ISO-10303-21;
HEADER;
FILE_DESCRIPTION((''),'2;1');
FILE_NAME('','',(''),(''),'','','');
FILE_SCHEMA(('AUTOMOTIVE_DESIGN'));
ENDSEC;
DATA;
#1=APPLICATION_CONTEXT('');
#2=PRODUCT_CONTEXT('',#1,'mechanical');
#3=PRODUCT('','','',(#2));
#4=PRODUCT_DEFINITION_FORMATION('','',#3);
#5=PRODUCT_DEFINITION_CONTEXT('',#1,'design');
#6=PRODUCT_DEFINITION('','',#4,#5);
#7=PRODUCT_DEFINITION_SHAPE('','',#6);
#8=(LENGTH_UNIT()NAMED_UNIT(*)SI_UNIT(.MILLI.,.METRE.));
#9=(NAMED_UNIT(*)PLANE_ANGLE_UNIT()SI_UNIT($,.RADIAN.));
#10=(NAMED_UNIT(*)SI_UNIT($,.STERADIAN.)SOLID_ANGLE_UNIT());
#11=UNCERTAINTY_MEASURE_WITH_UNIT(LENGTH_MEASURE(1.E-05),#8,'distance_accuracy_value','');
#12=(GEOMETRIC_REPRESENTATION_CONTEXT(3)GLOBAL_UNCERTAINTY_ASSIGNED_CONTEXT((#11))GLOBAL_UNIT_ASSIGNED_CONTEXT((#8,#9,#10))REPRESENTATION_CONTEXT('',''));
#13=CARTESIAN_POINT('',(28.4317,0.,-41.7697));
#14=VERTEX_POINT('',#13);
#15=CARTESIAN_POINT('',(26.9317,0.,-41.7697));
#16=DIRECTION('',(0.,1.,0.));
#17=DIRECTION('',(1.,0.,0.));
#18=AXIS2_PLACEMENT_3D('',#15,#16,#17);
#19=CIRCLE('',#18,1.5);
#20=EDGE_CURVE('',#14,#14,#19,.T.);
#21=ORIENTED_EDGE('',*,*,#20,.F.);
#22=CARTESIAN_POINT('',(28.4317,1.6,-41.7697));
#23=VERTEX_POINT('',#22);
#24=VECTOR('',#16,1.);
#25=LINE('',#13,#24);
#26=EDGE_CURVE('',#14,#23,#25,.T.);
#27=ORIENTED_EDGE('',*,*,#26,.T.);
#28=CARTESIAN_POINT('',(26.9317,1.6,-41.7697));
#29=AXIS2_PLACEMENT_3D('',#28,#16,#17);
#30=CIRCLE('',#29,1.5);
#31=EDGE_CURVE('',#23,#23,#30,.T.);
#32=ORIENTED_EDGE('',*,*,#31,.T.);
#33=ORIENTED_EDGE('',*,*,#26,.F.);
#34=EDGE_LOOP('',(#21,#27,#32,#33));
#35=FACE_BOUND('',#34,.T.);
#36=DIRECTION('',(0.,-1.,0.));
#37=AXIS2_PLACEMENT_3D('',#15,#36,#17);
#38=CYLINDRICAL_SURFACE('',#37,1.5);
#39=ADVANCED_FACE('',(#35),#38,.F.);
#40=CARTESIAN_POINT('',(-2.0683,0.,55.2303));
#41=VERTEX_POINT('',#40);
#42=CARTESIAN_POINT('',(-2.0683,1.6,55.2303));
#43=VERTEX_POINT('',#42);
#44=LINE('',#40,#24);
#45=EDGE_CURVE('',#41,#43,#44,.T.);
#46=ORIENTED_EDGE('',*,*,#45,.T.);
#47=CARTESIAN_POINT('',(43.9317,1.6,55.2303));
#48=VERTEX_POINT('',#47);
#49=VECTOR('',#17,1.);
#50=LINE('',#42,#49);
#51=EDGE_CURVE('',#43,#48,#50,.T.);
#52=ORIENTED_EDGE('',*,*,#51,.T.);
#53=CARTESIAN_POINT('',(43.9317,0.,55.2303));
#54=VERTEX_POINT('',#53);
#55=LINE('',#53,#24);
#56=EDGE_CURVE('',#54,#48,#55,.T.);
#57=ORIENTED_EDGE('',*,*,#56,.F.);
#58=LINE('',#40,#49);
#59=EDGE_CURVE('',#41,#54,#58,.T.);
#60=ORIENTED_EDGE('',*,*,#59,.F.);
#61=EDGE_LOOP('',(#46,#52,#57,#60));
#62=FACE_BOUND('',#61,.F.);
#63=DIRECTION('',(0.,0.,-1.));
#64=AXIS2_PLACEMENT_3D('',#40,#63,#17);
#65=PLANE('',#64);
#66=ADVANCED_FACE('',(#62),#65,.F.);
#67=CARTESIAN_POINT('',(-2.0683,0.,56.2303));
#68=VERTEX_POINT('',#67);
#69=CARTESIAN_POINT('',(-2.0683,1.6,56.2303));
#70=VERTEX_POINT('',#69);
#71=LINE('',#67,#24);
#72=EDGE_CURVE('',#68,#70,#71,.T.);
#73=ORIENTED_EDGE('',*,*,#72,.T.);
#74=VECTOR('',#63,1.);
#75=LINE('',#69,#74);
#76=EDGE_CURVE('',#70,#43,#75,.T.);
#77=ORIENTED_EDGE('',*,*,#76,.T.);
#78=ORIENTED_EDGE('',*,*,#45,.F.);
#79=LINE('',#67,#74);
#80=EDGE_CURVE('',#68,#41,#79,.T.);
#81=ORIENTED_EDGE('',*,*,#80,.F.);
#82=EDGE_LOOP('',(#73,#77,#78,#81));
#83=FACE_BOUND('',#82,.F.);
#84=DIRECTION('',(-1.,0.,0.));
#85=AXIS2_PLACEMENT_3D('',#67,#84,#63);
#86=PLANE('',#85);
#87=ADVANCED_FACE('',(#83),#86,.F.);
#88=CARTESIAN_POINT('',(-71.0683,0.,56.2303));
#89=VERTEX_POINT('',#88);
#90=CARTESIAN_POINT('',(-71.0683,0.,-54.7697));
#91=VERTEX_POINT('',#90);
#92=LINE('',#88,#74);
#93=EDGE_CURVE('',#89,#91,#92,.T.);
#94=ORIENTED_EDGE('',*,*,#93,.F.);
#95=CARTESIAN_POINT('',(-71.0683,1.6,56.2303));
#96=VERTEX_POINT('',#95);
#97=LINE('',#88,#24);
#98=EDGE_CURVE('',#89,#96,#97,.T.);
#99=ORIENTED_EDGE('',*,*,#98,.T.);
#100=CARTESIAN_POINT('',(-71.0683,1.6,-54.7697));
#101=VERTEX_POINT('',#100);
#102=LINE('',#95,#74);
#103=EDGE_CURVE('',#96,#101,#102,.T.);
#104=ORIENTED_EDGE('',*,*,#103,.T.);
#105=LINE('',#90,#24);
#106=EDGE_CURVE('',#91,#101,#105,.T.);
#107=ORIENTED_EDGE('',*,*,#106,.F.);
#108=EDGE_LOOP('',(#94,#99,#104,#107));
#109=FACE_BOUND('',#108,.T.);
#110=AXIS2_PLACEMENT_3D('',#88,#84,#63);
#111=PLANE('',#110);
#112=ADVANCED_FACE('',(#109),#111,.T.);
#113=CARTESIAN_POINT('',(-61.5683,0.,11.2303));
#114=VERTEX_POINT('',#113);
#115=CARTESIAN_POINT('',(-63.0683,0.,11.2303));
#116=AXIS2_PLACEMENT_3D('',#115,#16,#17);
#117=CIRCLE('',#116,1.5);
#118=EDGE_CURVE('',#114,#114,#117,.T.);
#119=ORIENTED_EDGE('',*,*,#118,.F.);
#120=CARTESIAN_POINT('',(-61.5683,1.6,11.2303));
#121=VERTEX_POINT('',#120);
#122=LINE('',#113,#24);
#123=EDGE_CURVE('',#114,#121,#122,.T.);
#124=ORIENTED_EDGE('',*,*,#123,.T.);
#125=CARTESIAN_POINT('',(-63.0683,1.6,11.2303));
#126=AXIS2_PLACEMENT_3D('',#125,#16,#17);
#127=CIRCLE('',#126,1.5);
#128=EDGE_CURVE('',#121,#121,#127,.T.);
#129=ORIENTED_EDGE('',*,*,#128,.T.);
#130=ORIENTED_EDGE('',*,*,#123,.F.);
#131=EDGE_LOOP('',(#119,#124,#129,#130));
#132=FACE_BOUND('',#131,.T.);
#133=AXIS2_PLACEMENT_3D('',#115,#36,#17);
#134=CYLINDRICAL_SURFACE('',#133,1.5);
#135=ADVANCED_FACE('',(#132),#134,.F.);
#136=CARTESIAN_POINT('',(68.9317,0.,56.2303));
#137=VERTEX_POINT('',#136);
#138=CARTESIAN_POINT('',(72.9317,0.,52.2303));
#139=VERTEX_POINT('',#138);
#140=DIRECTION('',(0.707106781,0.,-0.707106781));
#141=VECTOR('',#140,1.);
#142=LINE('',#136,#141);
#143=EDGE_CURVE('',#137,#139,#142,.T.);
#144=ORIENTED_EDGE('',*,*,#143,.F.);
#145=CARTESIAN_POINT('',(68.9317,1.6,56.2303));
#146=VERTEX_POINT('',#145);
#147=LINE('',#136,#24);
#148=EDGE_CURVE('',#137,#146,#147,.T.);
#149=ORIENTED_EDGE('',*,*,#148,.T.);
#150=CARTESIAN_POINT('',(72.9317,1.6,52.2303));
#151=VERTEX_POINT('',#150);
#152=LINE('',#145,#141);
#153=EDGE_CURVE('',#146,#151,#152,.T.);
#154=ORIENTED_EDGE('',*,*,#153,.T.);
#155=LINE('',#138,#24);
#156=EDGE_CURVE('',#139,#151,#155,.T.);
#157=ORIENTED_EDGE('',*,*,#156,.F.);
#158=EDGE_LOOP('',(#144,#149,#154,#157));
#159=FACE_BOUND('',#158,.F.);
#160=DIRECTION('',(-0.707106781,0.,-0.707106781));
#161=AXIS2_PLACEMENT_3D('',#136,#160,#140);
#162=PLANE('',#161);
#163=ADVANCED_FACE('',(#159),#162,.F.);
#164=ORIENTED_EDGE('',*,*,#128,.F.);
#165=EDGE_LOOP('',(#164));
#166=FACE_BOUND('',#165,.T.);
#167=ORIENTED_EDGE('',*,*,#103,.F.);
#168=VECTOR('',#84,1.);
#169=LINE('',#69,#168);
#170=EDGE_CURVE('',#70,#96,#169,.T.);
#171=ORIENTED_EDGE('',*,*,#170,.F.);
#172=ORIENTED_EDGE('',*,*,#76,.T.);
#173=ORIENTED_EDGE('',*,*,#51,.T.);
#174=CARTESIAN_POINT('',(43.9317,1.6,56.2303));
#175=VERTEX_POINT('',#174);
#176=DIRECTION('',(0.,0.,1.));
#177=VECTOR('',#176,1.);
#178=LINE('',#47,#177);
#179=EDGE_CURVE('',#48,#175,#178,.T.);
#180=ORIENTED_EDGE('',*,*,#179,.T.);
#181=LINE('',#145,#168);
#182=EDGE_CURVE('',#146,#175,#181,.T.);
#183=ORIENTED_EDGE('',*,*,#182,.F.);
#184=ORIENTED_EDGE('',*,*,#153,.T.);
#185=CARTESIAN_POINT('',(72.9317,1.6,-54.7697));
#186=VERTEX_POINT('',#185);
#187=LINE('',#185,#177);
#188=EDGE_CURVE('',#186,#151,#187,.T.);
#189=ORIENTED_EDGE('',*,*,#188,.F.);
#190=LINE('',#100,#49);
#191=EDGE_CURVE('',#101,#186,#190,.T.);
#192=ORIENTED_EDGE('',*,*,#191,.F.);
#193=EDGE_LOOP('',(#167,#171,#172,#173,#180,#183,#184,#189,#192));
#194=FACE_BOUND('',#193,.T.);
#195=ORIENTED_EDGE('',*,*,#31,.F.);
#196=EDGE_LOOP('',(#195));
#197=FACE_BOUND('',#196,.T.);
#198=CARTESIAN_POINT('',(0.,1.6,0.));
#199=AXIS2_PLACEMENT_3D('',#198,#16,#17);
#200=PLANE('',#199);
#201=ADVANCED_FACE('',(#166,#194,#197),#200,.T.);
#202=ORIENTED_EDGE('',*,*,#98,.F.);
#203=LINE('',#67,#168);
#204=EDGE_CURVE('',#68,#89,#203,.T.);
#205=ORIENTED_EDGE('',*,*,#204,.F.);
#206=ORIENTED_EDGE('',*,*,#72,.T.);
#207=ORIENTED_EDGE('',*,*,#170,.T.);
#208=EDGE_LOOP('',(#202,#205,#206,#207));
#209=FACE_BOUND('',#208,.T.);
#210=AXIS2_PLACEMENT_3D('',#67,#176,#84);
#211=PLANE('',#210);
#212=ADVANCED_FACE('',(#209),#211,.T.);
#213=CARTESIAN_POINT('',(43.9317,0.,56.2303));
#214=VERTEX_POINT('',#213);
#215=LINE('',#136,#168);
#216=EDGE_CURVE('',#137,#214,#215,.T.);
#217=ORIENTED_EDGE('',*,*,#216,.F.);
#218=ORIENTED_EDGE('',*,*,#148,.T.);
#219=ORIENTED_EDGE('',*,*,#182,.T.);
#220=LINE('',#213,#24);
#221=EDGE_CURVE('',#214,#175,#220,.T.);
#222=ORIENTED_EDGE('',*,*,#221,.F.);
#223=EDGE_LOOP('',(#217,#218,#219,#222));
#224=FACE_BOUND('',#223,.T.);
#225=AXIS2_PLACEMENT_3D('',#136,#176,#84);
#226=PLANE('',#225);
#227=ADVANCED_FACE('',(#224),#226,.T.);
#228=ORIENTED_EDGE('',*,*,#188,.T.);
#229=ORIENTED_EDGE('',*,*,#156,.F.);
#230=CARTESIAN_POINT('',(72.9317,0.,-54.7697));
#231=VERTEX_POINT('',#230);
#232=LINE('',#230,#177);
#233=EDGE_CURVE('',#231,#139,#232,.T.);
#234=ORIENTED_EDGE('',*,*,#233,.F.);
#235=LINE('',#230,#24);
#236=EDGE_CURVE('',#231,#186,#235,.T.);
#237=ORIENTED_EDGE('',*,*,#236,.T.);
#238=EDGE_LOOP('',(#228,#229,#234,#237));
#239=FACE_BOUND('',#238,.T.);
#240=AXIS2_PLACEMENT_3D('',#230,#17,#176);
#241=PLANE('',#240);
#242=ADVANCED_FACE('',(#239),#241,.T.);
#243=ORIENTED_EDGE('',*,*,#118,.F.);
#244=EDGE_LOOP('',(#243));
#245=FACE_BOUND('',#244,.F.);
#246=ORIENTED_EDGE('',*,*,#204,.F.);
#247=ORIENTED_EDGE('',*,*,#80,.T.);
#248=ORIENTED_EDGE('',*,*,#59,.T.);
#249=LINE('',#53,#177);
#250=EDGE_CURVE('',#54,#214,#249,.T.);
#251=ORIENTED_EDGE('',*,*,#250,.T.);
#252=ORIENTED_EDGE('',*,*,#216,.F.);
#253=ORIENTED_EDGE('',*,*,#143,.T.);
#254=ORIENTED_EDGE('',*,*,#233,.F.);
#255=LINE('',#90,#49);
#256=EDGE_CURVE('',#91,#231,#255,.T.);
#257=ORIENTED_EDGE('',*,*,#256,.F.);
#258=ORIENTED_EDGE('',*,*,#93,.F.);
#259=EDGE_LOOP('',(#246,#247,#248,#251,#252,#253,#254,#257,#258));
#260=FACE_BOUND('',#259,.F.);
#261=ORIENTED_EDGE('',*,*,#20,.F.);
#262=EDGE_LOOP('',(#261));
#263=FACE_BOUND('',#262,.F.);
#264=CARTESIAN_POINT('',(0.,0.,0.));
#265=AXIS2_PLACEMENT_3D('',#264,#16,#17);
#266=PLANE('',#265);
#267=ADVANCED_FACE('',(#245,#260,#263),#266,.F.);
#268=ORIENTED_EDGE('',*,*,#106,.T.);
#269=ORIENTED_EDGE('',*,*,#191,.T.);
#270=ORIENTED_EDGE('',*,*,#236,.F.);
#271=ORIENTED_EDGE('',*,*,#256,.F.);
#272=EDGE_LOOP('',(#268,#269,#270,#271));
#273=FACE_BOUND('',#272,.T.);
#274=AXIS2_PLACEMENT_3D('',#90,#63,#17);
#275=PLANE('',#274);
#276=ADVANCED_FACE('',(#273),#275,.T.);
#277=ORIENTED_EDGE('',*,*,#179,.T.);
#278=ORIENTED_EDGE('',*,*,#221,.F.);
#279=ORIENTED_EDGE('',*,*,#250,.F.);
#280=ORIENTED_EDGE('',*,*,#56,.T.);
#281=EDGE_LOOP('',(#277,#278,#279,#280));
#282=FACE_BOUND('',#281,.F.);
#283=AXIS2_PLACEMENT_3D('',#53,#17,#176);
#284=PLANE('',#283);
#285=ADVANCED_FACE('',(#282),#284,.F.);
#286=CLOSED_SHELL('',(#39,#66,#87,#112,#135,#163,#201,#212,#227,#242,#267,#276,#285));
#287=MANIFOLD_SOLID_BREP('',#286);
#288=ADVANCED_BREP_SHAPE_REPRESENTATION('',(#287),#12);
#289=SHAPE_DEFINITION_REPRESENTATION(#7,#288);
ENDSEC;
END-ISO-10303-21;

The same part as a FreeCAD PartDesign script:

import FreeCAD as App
import Part
import Sketcher
Q = App.Units.Quantity


def add_polygon(sketch, points):
    """Adds a closed chain of lines whose ends are joined by coincident constraints."""
    first, n = sketch.GeometryCount, len(points)
    for a, b in zip(points, points[1:] + points[:1]):
        sketch.addGeometry(Part.LineSegment(App.Vector(*a, 0), App.Vector(*b, 0)), False)
    for i in range(n):
        sketch.addConstraint(Sketcher.Constraint("Coincident", first + i, 2, first + (i + 1) % n, 1))

doc = App.newDocument("Part")
body = doc.addObject("PartDesign::Body", "Body")

sketch1 = body.newObject("Sketcher::SketchObject", "Sketch")
sketch1.AttachmentSupport = (doc.getObject("XZ_Plane"), [""])
sketch1.MapMode = "FlatFace"
add_polygon(sketch1, [(72.9, -54.8), (-71.1, -54.8), (-71.1, 56.2), (-2.1, 56.2), (-2.1, 55.2), (43.9, 55.2), (43.9, 56.2), (68.9, 56.2), (72.9, 52.2)])
sketch1.addGeometry(Part.Circle(App.Vector(-63.1, 11.2, 0), App.Vector(0, 0, 1), 1.5), False)
sketch1.addGeometry(Part.Circle(App.Vector(26.9, -41.8, 0), App.Vector(0, 0, 1), 1.5), False)
sketch1.addConstraint(Sketcher.Constraint("Horizontal", 0))
sketch1.addConstraint(Sketcher.Constraint("Vertical", 1))
sketch1.addConstraint(Sketcher.Constraint("Horizontal", 2))
sketch1.addConstraint(Sketcher.Constraint("Vertical", 3))
sketch1.addConstraint(Sketcher.Constraint("Horizontal", 4))
sketch1.addConstraint(Sketcher.Constraint("Vertical", 5))
sketch1.addConstraint(Sketcher.Constraint("Horizontal", 6))
sketch1.addConstraint(Sketcher.Constraint("Vertical", 8))
sketch1.addConstraint(Sketcher.Constraint("Equal", 9, 10))
sketch1.addConstraint(Sketcher.Constraint("Horizontal", 2, 2, 5, 2))
sketch1.addConstraint(Sketcher.Constraint("Diameter", 9, Q("3 mm")))
sketch1.addConstraint(Sketcher.Constraint("DistanceX", 0, 2, 0, 1, Q("144 mm")))
sketch1.addConstraint(Sketcher.Constraint("DistanceX", 2, 1, 2, 2, Q("69 mm")))
sketch1.addConstraint(Sketcher.Constraint("DistanceX", 4, 1, 4, 2, Q("46 mm")))
sketch1.addConstraint(Sketcher.Constraint("DistanceX", 6, 1, 6, 2, Q("25 mm")))
sketch1.addConstraint(Sketcher.Constraint("DistanceY", 1, 1, 1, 2, Q("111 mm")))
sketch1.addConstraint(Sketcher.Constraint("DistanceY", 3, 2, 3, 1, Q("1 mm")))
sketch1.addConstraint(Sketcher.Constraint("Angle", 7, Q("-45 deg")))
sketch1.addConstraint(Sketcher.Constraint("DistanceX", 0, 2, 9, 3, Q("8 mm")))
sketch1.addConstraint(Sketcher.Constraint("DistanceY", 0, 2, 9, 3, Q("66 mm")))
sketch1.addConstraint(Sketcher.Constraint("DistanceX", 0, 2, 10, 3, Q("98 mm")))
sketch1.addConstraint(Sketcher.Constraint("DistanceY", 0, 2, 10, 3, Q("13 mm")))
sketch1.addConstraint(Sketcher.Constraint("DistanceX", 9, 3, -1, 1, Q("63.0683 mm")))
sketch1.addConstraint(Sketcher.Constraint("DistanceY", -1, 1, 9, 3, Q("11.2303 mm")))
pad1 = body.newObject("PartDesign::Pad", "Pad")
pad1.Profile = sketch1
pad1.Length = 1.6
pad1.Reversed = True

doc.recompute()
